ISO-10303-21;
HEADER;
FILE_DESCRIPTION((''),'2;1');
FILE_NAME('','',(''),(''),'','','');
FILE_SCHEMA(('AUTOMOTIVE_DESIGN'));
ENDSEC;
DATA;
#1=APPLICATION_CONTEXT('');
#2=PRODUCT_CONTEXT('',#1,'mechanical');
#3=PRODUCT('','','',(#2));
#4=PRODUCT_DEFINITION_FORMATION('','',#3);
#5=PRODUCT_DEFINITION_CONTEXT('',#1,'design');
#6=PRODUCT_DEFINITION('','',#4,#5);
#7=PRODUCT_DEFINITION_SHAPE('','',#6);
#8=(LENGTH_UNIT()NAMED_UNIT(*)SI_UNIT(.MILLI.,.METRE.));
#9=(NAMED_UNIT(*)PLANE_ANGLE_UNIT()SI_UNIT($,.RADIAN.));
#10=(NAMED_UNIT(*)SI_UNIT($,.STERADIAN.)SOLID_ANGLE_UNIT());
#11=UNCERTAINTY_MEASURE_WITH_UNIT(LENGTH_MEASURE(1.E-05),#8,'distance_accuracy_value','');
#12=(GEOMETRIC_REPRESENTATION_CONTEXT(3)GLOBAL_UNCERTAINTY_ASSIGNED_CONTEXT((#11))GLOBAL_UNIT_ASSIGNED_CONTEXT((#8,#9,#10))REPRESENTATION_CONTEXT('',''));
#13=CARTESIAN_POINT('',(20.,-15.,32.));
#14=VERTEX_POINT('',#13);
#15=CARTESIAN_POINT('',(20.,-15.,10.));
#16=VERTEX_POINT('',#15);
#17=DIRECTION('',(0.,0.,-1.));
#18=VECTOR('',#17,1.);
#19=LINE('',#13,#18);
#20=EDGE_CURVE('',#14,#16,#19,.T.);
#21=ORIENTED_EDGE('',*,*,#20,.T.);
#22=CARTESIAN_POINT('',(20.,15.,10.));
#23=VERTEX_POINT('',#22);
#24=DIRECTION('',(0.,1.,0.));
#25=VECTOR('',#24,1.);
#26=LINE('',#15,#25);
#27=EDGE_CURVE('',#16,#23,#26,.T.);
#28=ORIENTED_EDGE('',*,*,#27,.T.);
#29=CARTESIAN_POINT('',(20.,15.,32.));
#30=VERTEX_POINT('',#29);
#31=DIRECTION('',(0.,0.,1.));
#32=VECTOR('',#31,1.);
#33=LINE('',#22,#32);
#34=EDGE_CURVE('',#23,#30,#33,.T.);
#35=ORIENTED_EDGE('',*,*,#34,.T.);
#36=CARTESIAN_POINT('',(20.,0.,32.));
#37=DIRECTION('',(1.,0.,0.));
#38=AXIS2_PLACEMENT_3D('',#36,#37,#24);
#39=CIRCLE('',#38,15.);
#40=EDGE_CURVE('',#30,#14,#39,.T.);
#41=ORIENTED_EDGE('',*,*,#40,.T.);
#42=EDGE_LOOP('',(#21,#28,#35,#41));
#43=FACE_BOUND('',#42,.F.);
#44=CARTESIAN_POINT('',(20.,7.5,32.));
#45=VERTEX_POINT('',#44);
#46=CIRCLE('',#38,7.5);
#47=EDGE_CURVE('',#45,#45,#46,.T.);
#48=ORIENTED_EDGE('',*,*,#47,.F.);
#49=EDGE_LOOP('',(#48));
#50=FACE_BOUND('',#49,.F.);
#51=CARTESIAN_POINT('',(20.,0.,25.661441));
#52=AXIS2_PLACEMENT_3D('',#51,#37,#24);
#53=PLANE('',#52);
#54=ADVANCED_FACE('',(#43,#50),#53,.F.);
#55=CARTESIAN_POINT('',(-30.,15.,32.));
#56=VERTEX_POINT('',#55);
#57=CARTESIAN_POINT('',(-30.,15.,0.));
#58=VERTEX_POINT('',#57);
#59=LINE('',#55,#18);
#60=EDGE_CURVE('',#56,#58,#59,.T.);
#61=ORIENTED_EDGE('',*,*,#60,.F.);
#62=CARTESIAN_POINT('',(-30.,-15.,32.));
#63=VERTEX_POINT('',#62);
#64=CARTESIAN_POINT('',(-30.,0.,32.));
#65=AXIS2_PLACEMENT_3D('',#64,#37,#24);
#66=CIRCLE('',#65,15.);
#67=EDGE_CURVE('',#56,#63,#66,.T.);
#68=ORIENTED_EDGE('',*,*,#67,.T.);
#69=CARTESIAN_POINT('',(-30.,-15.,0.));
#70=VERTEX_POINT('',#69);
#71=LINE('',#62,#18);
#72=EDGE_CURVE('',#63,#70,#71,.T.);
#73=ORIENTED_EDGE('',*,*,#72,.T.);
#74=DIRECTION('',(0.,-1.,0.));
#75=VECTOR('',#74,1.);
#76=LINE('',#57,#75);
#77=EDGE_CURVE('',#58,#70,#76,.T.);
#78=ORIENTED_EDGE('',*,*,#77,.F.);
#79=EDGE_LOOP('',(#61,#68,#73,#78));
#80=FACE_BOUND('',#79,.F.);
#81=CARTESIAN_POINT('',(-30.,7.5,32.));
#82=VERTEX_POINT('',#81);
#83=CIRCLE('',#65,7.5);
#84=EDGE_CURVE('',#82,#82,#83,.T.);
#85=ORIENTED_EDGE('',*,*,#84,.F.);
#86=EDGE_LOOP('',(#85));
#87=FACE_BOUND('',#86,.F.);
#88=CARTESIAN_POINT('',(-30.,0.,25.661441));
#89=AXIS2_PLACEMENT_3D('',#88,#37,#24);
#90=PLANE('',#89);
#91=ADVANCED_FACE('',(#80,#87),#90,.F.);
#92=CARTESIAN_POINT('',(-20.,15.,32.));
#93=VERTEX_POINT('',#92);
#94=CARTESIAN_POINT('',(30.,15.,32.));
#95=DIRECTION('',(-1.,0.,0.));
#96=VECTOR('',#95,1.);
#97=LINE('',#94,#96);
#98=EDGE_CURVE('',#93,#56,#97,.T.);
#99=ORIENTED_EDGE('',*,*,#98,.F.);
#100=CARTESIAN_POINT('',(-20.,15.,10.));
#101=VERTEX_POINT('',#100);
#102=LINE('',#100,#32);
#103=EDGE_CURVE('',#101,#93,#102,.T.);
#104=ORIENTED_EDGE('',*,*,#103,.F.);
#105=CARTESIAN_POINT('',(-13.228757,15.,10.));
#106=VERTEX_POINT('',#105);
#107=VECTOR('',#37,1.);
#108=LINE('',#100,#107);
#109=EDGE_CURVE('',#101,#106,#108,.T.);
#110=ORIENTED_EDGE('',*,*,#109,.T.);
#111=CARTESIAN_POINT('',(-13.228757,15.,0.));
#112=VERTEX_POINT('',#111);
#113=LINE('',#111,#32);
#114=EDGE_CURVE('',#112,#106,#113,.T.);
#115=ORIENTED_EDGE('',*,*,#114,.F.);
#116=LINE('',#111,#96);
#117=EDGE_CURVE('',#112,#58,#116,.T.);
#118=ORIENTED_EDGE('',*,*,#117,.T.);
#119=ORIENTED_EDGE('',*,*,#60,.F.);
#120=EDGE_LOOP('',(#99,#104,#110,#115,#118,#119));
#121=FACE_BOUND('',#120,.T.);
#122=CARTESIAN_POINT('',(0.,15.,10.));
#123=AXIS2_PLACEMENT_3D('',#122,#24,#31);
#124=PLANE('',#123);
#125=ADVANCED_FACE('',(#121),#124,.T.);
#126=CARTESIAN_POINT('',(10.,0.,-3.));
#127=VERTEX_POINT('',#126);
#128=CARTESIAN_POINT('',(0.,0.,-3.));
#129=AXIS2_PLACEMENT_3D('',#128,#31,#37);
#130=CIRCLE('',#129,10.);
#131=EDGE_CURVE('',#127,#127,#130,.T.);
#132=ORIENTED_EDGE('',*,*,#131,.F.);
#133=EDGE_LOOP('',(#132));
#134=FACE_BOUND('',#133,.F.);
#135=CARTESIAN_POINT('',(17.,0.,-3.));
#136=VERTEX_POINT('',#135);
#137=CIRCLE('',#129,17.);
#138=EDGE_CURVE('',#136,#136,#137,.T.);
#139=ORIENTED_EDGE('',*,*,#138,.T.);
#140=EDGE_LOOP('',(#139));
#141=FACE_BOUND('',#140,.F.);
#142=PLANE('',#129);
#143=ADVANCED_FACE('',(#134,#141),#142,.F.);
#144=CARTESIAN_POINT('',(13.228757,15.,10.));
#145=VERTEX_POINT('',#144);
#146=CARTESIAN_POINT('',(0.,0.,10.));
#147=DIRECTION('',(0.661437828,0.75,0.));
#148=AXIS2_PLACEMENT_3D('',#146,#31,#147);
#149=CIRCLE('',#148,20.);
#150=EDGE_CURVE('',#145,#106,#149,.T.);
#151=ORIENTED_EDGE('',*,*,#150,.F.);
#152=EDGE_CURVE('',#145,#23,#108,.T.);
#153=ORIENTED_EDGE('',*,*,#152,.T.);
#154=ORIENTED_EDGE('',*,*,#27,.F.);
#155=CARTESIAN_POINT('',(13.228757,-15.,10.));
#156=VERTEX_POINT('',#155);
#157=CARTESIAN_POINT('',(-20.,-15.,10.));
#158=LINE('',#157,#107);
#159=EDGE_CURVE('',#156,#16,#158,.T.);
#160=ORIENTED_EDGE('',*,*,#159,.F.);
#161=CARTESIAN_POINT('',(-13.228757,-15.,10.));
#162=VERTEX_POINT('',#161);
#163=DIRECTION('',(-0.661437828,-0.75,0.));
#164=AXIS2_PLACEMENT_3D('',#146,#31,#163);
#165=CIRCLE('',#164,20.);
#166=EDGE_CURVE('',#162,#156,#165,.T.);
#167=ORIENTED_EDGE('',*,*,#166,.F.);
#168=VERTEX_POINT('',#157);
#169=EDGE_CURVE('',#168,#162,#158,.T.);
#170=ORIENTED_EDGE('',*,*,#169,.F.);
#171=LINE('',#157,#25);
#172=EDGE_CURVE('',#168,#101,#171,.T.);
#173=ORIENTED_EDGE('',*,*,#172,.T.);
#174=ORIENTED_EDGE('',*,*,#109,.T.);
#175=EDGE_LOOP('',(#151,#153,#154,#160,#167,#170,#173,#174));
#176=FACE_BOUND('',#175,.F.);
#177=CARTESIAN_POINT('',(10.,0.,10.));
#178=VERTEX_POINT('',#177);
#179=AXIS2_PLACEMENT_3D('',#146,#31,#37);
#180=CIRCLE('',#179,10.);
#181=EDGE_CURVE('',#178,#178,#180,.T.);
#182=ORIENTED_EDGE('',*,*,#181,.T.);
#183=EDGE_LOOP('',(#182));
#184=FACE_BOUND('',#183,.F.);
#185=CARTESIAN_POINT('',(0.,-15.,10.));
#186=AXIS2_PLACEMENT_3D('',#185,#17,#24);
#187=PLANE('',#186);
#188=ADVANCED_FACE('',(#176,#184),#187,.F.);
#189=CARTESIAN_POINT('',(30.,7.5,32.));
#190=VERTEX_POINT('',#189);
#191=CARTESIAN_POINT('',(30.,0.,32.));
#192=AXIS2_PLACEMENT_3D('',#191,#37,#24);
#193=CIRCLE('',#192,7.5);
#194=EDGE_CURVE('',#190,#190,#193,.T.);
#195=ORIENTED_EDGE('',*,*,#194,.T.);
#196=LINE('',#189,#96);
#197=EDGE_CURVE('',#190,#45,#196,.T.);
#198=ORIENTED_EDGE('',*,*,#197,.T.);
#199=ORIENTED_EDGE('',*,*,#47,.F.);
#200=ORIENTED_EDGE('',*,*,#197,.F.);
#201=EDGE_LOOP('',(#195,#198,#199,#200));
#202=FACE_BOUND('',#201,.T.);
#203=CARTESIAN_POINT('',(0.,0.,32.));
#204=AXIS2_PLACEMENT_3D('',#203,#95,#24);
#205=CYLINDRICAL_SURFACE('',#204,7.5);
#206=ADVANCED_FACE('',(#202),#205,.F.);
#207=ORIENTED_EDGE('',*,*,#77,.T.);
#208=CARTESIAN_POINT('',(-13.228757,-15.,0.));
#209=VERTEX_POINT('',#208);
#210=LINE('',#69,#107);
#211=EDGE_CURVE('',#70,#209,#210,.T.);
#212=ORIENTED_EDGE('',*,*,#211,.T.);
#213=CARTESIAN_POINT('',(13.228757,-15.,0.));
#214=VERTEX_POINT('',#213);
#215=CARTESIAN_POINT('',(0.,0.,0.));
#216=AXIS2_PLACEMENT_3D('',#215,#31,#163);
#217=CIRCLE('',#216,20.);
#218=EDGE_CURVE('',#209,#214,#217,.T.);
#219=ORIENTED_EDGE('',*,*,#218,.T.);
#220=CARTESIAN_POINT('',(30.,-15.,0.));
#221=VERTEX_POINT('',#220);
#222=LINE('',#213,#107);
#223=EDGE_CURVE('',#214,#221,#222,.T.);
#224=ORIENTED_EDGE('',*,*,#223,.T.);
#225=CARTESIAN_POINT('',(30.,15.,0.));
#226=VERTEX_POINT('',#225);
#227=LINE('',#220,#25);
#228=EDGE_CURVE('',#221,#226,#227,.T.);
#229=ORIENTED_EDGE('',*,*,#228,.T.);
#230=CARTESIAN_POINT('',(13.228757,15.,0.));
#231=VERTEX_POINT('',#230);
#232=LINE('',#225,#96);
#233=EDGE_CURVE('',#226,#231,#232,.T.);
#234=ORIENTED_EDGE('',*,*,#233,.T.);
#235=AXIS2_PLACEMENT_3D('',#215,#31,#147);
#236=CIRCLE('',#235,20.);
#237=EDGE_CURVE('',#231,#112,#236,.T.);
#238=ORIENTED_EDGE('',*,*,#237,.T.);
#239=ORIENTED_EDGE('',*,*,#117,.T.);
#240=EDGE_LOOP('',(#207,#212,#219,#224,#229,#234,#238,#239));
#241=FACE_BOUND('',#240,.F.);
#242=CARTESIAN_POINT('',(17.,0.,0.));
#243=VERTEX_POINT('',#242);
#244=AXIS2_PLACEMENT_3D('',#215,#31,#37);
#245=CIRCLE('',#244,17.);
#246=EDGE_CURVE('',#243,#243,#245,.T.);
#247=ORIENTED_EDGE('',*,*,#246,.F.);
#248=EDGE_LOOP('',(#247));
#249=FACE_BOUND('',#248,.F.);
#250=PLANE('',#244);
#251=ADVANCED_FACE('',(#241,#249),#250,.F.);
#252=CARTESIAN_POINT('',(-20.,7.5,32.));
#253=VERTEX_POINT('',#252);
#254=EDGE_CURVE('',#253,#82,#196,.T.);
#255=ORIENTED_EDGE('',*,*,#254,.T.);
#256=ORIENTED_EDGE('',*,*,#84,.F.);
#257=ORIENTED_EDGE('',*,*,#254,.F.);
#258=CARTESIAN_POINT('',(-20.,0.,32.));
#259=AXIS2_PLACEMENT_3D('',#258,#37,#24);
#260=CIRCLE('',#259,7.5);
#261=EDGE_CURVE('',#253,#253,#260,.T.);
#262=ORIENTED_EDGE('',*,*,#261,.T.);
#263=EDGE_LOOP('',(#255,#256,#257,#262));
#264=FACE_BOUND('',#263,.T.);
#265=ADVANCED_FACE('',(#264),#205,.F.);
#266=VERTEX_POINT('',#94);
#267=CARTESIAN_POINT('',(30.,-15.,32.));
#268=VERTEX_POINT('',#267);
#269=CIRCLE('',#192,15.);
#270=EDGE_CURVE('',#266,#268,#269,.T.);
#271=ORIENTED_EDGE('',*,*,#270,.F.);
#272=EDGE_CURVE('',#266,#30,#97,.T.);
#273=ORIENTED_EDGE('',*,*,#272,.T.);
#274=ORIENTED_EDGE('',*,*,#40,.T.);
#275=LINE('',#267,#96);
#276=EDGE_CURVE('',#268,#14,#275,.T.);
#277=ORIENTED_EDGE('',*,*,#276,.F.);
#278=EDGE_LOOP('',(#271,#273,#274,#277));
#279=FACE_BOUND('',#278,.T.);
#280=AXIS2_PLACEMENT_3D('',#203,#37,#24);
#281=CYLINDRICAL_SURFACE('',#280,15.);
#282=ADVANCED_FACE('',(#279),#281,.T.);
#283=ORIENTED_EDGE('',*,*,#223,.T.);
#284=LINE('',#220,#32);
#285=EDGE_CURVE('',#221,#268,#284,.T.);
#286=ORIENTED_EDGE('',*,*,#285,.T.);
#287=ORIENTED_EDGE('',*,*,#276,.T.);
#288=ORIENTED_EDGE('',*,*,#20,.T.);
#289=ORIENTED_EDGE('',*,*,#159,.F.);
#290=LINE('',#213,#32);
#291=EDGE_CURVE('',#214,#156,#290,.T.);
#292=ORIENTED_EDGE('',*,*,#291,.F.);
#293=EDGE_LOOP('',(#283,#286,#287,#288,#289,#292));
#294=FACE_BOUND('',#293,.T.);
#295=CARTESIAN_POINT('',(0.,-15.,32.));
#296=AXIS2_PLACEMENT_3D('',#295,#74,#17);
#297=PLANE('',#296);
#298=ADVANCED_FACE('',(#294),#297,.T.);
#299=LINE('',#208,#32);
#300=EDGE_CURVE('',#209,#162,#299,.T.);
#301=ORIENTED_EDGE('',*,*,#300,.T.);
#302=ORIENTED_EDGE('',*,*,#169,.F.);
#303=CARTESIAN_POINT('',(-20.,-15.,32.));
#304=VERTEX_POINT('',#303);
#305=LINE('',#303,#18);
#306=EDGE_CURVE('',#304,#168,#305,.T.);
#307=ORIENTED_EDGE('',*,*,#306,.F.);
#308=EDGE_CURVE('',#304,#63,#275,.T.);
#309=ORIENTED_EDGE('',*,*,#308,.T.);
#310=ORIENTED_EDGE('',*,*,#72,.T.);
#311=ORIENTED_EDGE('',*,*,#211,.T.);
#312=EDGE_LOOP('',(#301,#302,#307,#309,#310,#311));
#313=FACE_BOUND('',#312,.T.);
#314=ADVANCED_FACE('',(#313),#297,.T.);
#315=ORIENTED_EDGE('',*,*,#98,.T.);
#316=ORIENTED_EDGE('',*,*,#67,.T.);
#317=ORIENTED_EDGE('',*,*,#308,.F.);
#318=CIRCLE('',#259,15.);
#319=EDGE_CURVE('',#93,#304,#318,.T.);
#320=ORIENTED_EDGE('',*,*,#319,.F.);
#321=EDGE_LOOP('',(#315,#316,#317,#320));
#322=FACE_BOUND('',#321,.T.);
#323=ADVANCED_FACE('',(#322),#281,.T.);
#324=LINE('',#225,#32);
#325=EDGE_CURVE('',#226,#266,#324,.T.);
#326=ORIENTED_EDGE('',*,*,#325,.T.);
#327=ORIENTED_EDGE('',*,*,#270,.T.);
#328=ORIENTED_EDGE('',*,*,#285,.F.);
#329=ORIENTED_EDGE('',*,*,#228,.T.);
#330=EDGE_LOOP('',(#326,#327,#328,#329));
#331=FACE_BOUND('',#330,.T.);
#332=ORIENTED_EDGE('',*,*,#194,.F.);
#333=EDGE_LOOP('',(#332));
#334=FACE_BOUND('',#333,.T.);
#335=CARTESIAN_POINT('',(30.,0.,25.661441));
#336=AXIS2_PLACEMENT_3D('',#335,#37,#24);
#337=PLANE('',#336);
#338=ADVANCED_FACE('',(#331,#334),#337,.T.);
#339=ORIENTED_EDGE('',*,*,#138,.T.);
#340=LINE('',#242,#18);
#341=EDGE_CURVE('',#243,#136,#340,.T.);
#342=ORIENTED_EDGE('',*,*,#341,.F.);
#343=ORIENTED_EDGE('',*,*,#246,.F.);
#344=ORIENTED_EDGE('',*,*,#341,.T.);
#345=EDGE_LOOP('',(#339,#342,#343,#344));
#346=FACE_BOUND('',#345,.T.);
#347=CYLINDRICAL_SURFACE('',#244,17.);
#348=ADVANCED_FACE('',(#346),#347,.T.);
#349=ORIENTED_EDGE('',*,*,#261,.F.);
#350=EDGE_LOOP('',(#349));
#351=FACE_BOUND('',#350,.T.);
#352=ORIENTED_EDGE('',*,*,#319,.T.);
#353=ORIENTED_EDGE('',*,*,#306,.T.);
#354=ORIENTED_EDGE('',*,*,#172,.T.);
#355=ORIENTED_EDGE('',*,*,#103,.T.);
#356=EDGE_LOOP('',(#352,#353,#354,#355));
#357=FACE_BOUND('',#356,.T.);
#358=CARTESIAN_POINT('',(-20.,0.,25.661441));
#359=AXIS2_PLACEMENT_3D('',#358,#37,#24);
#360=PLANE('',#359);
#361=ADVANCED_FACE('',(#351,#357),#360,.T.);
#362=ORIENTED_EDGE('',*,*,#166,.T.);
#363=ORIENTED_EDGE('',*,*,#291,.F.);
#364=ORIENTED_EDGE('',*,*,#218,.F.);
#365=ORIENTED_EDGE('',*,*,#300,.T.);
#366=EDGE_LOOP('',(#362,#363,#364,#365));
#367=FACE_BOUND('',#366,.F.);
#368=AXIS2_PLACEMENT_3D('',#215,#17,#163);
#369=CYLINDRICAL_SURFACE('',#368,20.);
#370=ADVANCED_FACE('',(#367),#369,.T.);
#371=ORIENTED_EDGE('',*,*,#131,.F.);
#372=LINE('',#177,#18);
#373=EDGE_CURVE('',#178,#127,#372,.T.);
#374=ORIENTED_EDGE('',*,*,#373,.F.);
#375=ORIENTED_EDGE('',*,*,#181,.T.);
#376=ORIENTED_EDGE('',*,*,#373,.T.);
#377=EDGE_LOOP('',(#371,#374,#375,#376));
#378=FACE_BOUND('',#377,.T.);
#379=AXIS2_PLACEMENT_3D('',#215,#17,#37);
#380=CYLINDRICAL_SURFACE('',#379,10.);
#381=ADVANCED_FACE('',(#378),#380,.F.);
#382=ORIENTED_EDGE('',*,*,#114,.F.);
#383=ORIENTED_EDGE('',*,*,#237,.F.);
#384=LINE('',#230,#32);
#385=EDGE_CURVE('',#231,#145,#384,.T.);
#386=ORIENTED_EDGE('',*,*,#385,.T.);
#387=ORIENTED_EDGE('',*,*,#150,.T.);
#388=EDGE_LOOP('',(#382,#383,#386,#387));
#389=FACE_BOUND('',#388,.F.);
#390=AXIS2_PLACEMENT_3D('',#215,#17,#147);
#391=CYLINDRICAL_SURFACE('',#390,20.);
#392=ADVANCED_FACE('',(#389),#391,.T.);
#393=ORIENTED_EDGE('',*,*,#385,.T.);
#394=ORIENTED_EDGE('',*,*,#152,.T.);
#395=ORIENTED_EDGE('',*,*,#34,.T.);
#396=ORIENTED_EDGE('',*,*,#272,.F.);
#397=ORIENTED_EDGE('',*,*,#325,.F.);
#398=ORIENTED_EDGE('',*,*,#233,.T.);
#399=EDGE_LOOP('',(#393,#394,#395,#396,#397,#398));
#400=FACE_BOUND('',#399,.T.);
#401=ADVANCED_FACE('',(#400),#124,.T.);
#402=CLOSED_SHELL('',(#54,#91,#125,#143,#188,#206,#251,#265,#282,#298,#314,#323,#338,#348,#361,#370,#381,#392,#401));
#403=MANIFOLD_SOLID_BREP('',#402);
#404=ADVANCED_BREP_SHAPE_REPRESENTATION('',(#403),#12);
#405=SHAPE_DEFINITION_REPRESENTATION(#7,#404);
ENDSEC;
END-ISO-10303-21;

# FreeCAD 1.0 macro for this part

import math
import FreeCAD as App
import Part
import Sketcher
from FreeCAD import Vector

doc = App.newDocument("Part")
body = doc.addObject("PartDesign::Body", "Body")

sketch1 = body.newObject("Sketcher::SketchObject", "Sketch")
sketch1.AttachmentSupport = (doc.getObject("XY_Plane"), [""])
sketch1.MapMode = "FlatFace"
sketch1.addGeometry([
    Part.LineSegment(Vector(-13.228757, 15, 0), Vector(-30, 15, 0)),
    Part.LineSegment(Vector(-30, 15, 0), Vector(-30, -15, 0)),
    Part.LineSegment(Vector(-30, -15, 0), Vector(-13.228757, -15, 0)),
    Part.ArcOfCircle(Part.Circle(Vector(0, 0, 0), Vector(0, 0, 1), 20), math.radians(-131.409622), math.radians(-48.590378)),
    Part.LineSegment(Vector(13.228757, -15, 0), Vector(30, -15, 0)),
    Part.LineSegment(Vector(30, -15, 0), Vector(30, 15, 0)),
    Part.LineSegment(Vector(30, 15, 0), Vector(13.228757, 15, 0)),
    Part.ArcOfCircle(Part.Circle(Vector(0, 0, 0), Vector(0, 0, 1), 20), math.radians(48.590378), math.radians(131.409622)),
    Part.Circle(Vector(0, 0, 0), Vector(0, 0, 1), 10),
], False)
sketch1.addConstraint([
    Sketcher.Constraint("Coincident", 0, 2, 1, 1),
    Sketcher.Constraint("Coincident", 1, 2, 2, 1),
    Sketcher.Constraint("Coincident", 2, 2, 3, 1),
    Sketcher.Constraint("Coincident", 3, 2, 4, 1),
    Sketcher.Constraint("Coincident", 4, 2, 5, 1),
    Sketcher.Constraint("Coincident", 5, 2, 6, 1),
    Sketcher.Constraint("Coincident", 6, 2, 7, 1),
    Sketcher.Constraint("Coincident", 7, 2, 0, 1),
    Sketcher.Constraint("Horizontal", 0),
    Sketcher.Constraint("Vertical", 1),
    Sketcher.Constraint("Horizontal", 2),
    Sketcher.Constraint("Horizontal", 4),
    Sketcher.Constraint("Vertical", 5),
    Sketcher.Constraint("Horizontal", 6),
    Sketcher.Constraint("Coincident", 3, 3, -1, 1),
    Sketcher.Constraint("Coincident", 7, 3, -1, 1),
    Sketcher.Constraint("Coincident", 8, 3, -1, 1),
    Sketcher.Constraint("Equal", 3, 7),
    Sketcher.Constraint("Symmetric", 0, 2, 4, 2, -1, 1),
    Sketcher.Constraint("Horizontal", 2, 2, 3, 2),
    Sketcher.Constraint("Horizontal", 0, 2, 5, 2),
    Sketcher.Constraint("Diameter", 8, 20.0),
    Sketcher.Constraint("Radius", 3, 20.0),
    Sketcher.Constraint("DistanceY", 1, 2, 1, 1, 30.0),
    Sketcher.Constraint("DistanceX", 0, 2, -1, 1, 30.0),
])
pad1 = body.newObject("PartDesign::Pad", "Pad")
pad1.Profile = sketch1
pad1.Length = 10

sketch2 = body.newObject("Sketcher::SketchObject", "Sketch001")
sketch2.AttachmentSupport = (doc.getObject("XY_Plane"), [""])
sketch2.MapMode = "FlatFace"
sketch2.addGeometry([
    Part.Circle(Vector(0, 0, 0), Vector(0, 0, 1), 17),
    Part.Circle(Vector(0, 0, 0), Vector(0, 0, 1), 10),
], False)
sketch2.addConstraint([
    Sketcher.Constraint("Coincident", 0, 3, -1, 1),
    Sketcher.Constraint("Coincident", 1, 3, -1, 1),
    Sketcher.Constraint("Diameter", 0, 34.0),
    Sketcher.Constraint("Diameter", 1, 20.0),
])
pad2 = body.newObject("PartDesign::Pad", "Pad001")
pad2.Profile = sketch2
pad2.Length = 3
pad2.Reversed = True

sketch3 = body.newObject("Sketcher::SketchObject", "Sketch002")
sketch3.AttachmentSupport = (doc.getObject("YZ_Plane"), [""])
sketch3.MapMode = "FlatFace"
sketch3.addGeometry([
    Part.LineSegment(Vector(-15, 32, 0), Vector(-15, 10, 0)),
    Part.LineSegment(Vector(-15, 10, 0), Vector(15, 10, 0)),
    Part.LineSegment(Vector(15, 10, 0), Vector(15, 32, 0)),
    Part.ArcOfCircle(Part.Circle(Vector(0, 32, 0), Vector(0, 0, 1), 15), math.radians(0), math.radians(180)),
    Part.Circle(Vector(0, 32, 0), Vector(0, 0, 1), 7.5),
], False)
sketch3.addConstraint([
    Sketcher.Constraint("Coincident", 0, 2, 1, 1),
    Sketcher.Constraint("Coincident", 1, 2, 2, 1),
    Sketcher.Constraint("Tangent", 2, 2, 3, 1),
    Sketcher.Constraint("Tangent", 3, 2, 0, 1),
    Sketcher.Constraint("Vertical", 0),
    Sketcher.Constraint("Horizontal", 1),
    Sketcher.Constraint("Vertical", 2),
    Sketcher.Constraint("Coincident", 4, 3, 3, 3),
    Sketcher.Constraint("PointOnObject", 3, 3, -2),
    Sketcher.Constraint("Diameter", 4, 15.0),
    Sketcher.Constraint("Radius", 3, 15.0),
    Sketcher.Constraint("DistanceY", 0, 2, 0, 1, 22.0),
    Sketcher.Constraint("DistanceY", -1, 1, 3, 3, 32.0),
])
pad3 = body.newObject("PartDesign::Pad", "Pad002")
pad3.Profile = sketch3
pad3.Length = 60
pad3.Midplane = True

sketch4 = body.newObject("Sketcher::SketchObject", "Sketch003")
sketch4.AttachmentSupport = (doc.getObject("YZ_Plane"), [""])
sketch4.MapMode = "FlatFace"
sketch4.addGeometry([
    Part.LineSegment(Vector(-15, 32, 0), Vector(-15, 10, 0)),
    Part.LineSegment(Vector(-15, 10, 0), Vector(15, 10, 0)),
    Part.LineSegment(Vector(15, 10, 0), Vector(15, 32, 0)),
    Part.ArcOfCircle(Part.Circle(Vector(0, 32, 0), Vector(0, 0, 1), 15), math.radians(0), math.radians(180)),
    Part.Circle(Vector(0, 32, 0), Vector(0, 0, 1), 7.5),
], False)
sketch4.addConstraint([
    Sketcher.Constraint("Coincident", 0, 2, 1, 1),
    Sketcher.Constraint("Coincident", 1, 2, 2, 1),
    Sketcher.Constraint("Tangent", 2, 2, 3, 1),
    Sketcher.Constraint("Tangent", 3, 2, 0, 1),
    Sketcher.Constraint("Vertical", 0),
    Sketcher.Constraint("Horizontal", 1),
    Sketcher.Constraint("Vertical", 2),
    Sketcher.Constraint("Coincident", 4, 3, 3, 3),
    Sketcher.Constraint("PointOnObject", 3, 3, -2),
    Sketcher.Constraint("Diameter", 4, 15.0),
    Sketcher.Constraint("Radius", 3, 15.0),
    Sketcher.Constraint("DistanceY", 0, 2, 0, 1, 22.0),
    Sketcher.Constraint("DistanceY", -1, 1, 3, 3, 32.0),
])
pocket1 = body.newObject("PartDesign::Pocket", "Pocket")
pocket1.Profile = sketch4
pocket1.Length = 40
pocket1.Midplane = True

doc.recompute()
